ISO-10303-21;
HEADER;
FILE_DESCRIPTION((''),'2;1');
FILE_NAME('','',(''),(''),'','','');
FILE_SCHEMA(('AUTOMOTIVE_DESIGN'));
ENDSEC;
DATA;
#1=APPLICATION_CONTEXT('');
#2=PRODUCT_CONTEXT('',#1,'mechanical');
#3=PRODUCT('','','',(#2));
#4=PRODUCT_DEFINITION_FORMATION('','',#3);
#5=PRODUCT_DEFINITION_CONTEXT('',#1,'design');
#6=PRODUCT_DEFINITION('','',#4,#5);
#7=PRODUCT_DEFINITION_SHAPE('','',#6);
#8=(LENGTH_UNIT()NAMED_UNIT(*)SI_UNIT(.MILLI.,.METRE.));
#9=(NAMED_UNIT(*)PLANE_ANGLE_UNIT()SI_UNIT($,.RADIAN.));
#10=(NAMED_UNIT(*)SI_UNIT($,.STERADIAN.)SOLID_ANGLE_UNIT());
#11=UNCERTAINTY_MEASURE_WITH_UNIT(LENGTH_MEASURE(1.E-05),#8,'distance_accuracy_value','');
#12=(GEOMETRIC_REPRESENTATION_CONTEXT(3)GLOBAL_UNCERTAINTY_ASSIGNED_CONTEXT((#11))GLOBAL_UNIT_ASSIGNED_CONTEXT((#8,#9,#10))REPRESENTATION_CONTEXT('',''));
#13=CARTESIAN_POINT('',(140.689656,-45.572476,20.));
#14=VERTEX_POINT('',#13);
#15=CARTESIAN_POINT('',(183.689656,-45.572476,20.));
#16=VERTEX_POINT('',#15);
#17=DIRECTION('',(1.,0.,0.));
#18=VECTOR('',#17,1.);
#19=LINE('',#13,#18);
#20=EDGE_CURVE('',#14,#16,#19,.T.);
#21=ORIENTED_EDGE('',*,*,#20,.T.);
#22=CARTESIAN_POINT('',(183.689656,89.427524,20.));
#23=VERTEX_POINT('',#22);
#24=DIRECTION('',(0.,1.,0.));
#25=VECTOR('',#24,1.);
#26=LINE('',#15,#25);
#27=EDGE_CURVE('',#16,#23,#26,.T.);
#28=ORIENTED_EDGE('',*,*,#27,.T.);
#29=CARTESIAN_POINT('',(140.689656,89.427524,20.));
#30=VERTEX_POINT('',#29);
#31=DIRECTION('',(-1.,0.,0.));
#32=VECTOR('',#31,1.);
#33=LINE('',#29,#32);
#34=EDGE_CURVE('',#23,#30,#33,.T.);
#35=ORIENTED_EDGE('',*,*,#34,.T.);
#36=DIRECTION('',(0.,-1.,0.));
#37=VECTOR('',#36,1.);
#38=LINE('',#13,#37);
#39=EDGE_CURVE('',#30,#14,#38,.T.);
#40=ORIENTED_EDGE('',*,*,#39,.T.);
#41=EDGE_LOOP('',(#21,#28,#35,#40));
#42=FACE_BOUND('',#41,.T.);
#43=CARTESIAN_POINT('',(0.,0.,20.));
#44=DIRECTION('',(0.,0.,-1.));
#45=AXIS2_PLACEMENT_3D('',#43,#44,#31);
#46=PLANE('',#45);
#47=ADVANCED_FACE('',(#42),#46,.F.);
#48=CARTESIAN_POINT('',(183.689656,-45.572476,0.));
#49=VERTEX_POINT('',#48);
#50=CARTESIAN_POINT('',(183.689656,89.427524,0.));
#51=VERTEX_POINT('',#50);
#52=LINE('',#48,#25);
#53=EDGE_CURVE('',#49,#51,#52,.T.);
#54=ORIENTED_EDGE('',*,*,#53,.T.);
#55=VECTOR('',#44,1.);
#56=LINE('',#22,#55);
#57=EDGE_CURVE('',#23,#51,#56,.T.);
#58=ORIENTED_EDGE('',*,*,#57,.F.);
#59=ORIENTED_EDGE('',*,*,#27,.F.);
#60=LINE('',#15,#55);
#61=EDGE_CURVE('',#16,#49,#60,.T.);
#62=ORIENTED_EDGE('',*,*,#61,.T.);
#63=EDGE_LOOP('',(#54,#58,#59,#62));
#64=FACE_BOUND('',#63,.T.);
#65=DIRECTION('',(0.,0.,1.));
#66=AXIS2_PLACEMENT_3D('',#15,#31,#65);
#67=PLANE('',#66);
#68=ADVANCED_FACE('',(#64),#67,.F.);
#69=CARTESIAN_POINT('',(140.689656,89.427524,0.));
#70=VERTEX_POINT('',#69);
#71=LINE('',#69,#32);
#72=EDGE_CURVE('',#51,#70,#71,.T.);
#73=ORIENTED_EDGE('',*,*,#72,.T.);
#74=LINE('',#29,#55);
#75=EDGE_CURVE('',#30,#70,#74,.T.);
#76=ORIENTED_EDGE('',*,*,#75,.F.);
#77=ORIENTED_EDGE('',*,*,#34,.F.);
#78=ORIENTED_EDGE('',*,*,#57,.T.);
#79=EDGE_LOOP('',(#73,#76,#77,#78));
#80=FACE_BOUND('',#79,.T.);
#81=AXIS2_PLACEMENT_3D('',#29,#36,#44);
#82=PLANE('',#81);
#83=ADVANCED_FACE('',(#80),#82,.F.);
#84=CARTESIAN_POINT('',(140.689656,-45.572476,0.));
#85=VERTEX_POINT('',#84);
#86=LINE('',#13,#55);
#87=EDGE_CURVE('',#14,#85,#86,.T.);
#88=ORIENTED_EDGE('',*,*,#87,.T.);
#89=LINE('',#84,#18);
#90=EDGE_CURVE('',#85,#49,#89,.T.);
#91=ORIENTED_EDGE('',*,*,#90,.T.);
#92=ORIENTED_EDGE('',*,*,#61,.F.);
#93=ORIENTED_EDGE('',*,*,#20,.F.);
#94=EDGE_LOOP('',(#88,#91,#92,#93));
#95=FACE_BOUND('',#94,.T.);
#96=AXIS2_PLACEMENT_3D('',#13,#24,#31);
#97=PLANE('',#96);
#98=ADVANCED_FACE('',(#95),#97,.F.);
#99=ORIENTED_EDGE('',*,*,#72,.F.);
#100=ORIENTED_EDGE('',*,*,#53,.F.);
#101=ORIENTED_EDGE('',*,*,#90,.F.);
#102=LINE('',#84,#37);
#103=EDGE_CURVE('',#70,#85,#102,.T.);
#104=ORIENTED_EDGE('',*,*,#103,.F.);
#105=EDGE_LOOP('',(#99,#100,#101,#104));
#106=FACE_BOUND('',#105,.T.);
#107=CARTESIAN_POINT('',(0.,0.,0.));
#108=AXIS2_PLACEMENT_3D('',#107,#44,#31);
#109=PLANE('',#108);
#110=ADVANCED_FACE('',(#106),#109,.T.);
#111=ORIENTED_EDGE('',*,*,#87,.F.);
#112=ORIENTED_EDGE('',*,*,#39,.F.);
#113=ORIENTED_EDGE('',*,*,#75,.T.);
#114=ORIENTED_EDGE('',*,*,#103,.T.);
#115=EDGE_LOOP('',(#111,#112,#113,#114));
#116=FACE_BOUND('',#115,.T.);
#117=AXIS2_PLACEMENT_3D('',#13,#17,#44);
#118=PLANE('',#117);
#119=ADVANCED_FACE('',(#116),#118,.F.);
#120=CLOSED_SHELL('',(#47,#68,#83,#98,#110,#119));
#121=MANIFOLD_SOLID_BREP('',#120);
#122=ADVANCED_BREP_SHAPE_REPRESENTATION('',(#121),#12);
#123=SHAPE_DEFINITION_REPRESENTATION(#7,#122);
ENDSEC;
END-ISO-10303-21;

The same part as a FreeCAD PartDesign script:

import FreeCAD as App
import Part
import Sketcher
from FreeCAD import Vector


def add_polygon(sketch, points):
    """Adds a closed chain of lines whose ends are joined by coincident constraints."""
    first, n = sketch.GeometryCount, len(points)
    for a, b in zip(points, points[1:] + points[:1]):
        sketch.addGeometry(Part.LineSegment(App.Vector(*a, 0), App.Vector(*b, 0)), False)
    for i in range(n):
        sketch.addConstraint(Sketcher.Constraint("Coincident", first + i, 2, first + (i + 1) % n, 1))

doc = App.newDocument("Part")
body = doc.addObject("PartDesign::Body", "Body")

sketch1 = body.newObject("Sketcher::SketchObject", "Sketch")
sketch1.AttachmentSupport = (doc.getObject("XY_Plane"), [""])
sketch1.MapMode = "FlatFace"
add_polygon(sketch1, [(141, 89), (141, -46), (184, -46), (184, 89)])
sketch1.addConstraint([
    Sketcher.Constraint("Vertical", 0),
    Sketcher.Constraint("Horizontal", 1),
    Sketcher.Constraint("Vertical", 2),
    Sketcher.Constraint("Horizontal", 3),
    Sketcher.Constraint("DistanceX", 1, 1, 1, 2, 43.0),
    Sketcher.Constraint("DistanceY", 0, 2, 0, 1, 135.0),
    Sketcher.Constraint("DistanceX", -1, 1, 0, 2, 140.689656),
    Sketcher.Constraint("DistanceY", 0, 2, -1, 1, 45.572476),
])
pad1 = body.newObject("PartDesign::Pad", "Pad")
pad1.Profile = sketch1
pad1.Length = 20

doc.recompute()
